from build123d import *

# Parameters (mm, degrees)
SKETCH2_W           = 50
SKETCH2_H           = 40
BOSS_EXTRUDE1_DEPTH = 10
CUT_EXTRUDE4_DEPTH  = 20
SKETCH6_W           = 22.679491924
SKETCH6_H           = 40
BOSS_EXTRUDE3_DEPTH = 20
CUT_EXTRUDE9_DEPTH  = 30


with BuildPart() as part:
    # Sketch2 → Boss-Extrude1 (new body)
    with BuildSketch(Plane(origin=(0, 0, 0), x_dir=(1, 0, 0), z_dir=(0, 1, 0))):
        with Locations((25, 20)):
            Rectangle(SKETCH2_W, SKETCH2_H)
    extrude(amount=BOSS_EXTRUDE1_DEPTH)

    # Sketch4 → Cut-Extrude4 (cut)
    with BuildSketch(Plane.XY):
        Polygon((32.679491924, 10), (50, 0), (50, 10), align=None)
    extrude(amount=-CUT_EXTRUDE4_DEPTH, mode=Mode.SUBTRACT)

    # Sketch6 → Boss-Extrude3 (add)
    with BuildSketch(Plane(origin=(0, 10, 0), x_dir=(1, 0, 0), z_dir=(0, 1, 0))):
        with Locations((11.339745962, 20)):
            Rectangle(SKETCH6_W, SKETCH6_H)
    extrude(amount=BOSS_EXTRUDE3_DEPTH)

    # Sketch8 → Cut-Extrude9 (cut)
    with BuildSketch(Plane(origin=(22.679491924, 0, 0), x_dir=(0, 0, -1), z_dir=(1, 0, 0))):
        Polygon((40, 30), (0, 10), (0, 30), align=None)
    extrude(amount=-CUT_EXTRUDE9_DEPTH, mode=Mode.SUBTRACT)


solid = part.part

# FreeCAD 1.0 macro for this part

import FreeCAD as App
import Part
import Sketcher
from FreeCAD import Vector
Q = App.Units.Quantity

doc = App.newDocument("Part")
body = doc.addObject("PartDesign::Body", "Body")

sketch1 = body.newObject("Sketcher::SketchObject", "Sketch")
sketch1.AttachmentSupport = (doc.getObject("XZ_Plane"), [""])
sketch1.MapMode = "FlatFace"
sketch1.addGeometry([
    Part.LineSegment(Vector(0, -40, 0), Vector(0, 0, 0)),
    Part.LineSegment(Vector(0, 0, 0), Vector(50, 0, 0)),
    Part.LineSegment(Vector(50, 0, 0), Vector(50, -40, 0)),
    Part.LineSegment(Vector(50, -40, 0), Vector(0, -40, 0)),
], False)
sketch1.addConstraint([
    Sketcher.Constraint("Coincident", 0, 2, 1, 1),
    Sketcher.Constraint("Coincident", 1, 2, 2, 1),
    Sketcher.Constraint("Coincident", 2, 2, 3, 1),
    Sketcher.Constraint("Coincident", 3, 2, 0, 1),
    Sketcher.Constraint("Vertical", 0),
    Sketcher.Constraint("Horizontal", 1),
    Sketcher.Constraint("Vertical", 2),
    Sketcher.Constraint("Horizontal", 3),
    Sketcher.Constraint("Coincident", 0, 2, -1, 1),
    Sketcher.Constraint("DistanceX", 1, 1, 1, 2, 50.0),
    Sketcher.Constraint("DistanceY", 0, 1, 0, 2, 40.0),
])
pad1 = body.newObject("PartDesign::Pad", "Pad")
pad1.Profile = sketch1
pad1.Length = 10
pad1.Reversed = True

sketch2 = body.newObject("Sketcher::SketchObject", "Sketch001")
sketch2.AttachmentSupport = (doc.getObject("XY_Plane"), [""])
sketch2.MapMode = "FlatFace"
sketch2.addGeometry([
    Part.LineSegment(Vector(33, 10, 0), Vector(50, 0, 0)),
    Part.LineSegment(Vector(50, 0, 0), Vector(50, 10, 0)),
    Part.LineSegment(Vector(50, 10, 0), Vector(33, 10, 0)),
], False)
sketch2.addConstraint([
    Sketcher.Constraint("Coincident", 0, 2, 1, 1),
    Sketcher.Constraint("Coincident", 1, 2, 2, 1),
    Sketcher.Constraint("Coincident", 2, 2, 0, 1),
    Sketcher.Constraint("Vertical", 1),
    Sketcher.Constraint("Horizontal", 2),
    Sketcher.Constraint("PointOnObject", 0, 2, -1),
    Sketcher.Constraint("DistanceY", 1, 1, 1, 2, 10.0),
    Sketcher.Constraint("Angle", 0, Q("-30 deg")),
    Sketcher.Constraint("DistanceX", -1, 1, 0, 2, 50.0),
])
pocket1 = body.newObject("PartDesign::Pocket", "Pocket")
pocket1.Profile = sketch2
pocket1.Length = 20

sketch3 = body.newObject("Sketcher::SketchObject", "Sketch002")
sketch3.AttachmentSupport = (doc.getObject("XZ_Plane"), [""])
sketch3.MapMode = "FlatFace"
sketch3.AttachmentOffset = App.Placement(Vector(0, 0, -10), App.Rotation())
sketch3.addGeometry([
    Part.LineSegment(Vector(0, -40, 0), Vector(0, 0, 0)),
    Part.LineSegment(Vector(0, 0, 0), Vector(23, 0, 0)),
    Part.LineSegment(Vector(23, 0, 0), Vector(23, -40, 0)),
    Part.LineSegment(Vector(23, -40, 0), Vector(0, -40, 0)),
], False)
sketch3.addConstraint([
    Sketcher.Constraint("Coincident", 0, 2, 1, 1),
    Sketcher.Constraint("Coincident", 1, 2, 2, 1),
    Sketcher.Constraint("Coincident", 2, 2, 3, 1),
    Sketcher.Constraint("Coincident", 3, 2, 0, 1),
    Sketcher.Constraint("Vertical", 0),
    Sketcher.Constraint("Horizontal", 1),
    Sketcher.Constraint("Vertical", 2),
    Sketcher.Constraint("Horizontal", 3),
    Sketcher.Constraint("Coincident", 0, 2, -1, 1),
    Sketcher.Constraint("DistanceY", 0, 1, 0, 2, 40.0),
    Sketcher.Constraint("DistanceX", 1, 1, 1, 2, 22.679492),
])
pad2 = body.newObject("PartDesign::Pad", "Pad001")
pad2.Profile = sketch3
pad2.Length = 20
pad2.Reversed = True

sketch4 = body.newObject("Sketcher::SketchObject", "Sketch003")
sketch4.AttachmentSupport = (doc.getObject("YZ_Plane"), [""])
sketch4.MapMode = "FlatFace"
sketch4.AttachmentOffset = App.Placement(Vector(0, 0, 22.679492), App.Rotation())
sketch4.addGeometry([
    Part.LineSegment(Vector(10, 0, 0), Vector(30, -40, 0)),
    Part.LineSegment(Vector(30, -40, 0), Vector(30, 0, 0)),
    Part.LineSegment(Vector(30, 0, 0), Vector(10, 0, 0)),
], False)
sketch4.addConstraint([
    Sketcher.Constraint("Coincident", 0, 2, 1, 1),
    Sketcher.Constraint("Coincident", 1, 2, 2, 1),
    Sketcher.Constraint("Coincident", 2, 2, 0, 1),
    Sketcher.Constraint("Vertical", 1),
    Sketcher.Constraint("Horizontal", 2),
    Sketcher.Constraint("PointOnObject", 1, 2, -1),
    Sketcher.Constraint("DistanceX", 2, 2, 2, 1, 20.0),
    Sketcher.Constraint("DistanceY", 1, 1, 1, 2, 40.0),
    Sketcher.Constraint("DistanceX", -1, 1, 0, 2, 30.0),
])
pocket2 = body.newObject("PartDesign::Pocket", "Pocket001")
pocket2.Profile = sketch4
pocket2.Length = 30

doc.recompute()
